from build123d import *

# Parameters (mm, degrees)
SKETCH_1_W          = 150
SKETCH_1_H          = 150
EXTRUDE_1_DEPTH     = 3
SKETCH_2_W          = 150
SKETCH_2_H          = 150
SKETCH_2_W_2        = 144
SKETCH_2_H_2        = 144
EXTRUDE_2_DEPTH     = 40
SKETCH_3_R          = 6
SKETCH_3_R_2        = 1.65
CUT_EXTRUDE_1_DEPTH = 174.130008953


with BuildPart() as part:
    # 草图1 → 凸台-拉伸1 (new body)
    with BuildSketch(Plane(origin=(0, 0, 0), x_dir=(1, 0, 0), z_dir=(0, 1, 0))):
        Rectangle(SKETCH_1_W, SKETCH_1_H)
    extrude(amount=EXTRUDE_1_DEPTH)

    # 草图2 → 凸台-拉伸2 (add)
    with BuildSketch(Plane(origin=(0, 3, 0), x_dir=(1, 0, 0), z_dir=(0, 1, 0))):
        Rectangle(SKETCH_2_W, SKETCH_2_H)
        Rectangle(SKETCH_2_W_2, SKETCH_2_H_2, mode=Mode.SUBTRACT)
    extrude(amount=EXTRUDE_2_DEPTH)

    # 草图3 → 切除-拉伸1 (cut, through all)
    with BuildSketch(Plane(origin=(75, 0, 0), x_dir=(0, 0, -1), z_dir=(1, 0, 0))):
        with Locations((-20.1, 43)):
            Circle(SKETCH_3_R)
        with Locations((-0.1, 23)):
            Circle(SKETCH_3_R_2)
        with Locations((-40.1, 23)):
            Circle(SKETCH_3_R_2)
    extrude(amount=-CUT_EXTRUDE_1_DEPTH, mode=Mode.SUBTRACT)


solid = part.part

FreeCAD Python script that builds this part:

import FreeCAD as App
import Part
import Sketcher
from FreeCAD import Vector


def add_polygon(sketch, points):
    """Adds a closed chain of lines whose ends are joined by coincident constraints."""
    first, n = sketch.GeometryCount, len(points)
    for a, b in zip(points, points[1:] + points[:1]):
        sketch.addGeometry(Part.LineSegment(App.Vector(*a, 0), App.Vector(*b, 0)), False)
    for i in range(n):
        sketch.addConstraint(Sketcher.Constraint("Coincident", first + i, 2, first + (i + 1) % n, 1))

doc = App.newDocument("Part")
body = doc.addObject("PartDesign::Body", "Body")

# Sketch on XZ plane
sketch1 = body.newObject("Sketcher::SketchObject", "Sketch")
sketch1.AttachmentSupport = (doc.getObject("XZ_Plane"), [""])
sketch1.MapMode = "FlatFace"
add_polygon(sketch1, [(-75, -75), (-75, 75), (75, 75), (75, -75)])  # lines 0-3
sketch1.addConstraint([
    Sketcher.Constraint("Vertical", 0),
    Sketcher.Constraint("Horizontal", 1),
    Sketcher.Constraint("Vertical", 2),
    Sketcher.Constraint("Horizontal", 3),
    Sketcher.Constraint("Symmetric", 0, 2, 2, 2, -1, 1),
    Sketcher.Constraint("Equal", 3, 0),
    Sketcher.Constraint("DistanceX", 1, 1, 1, 2, 150.0),
])
pad1 = body.newObject("PartDesign::Pad", "Pad")
pad1.Profile = sketch1
pad1.Length = 3
pad1.Reversed = True

# Sketch on XZ plane
sketch2 = body.newObject("Sketcher::SketchObject", "Sketch001")
sketch2.AttachmentSupport = (doc.getObject("XZ_Plane"), [""])
sketch2.MapMode = "FlatFace"
sketch2.AttachmentOffset = App.Placement(Vector(0, 0, -3), App.Rotation())
add_polygon(sketch2, [(-75, -75), (-75, 75), (75, 75), (75, -75)])  # lines 0-3
add_polygon(sketch2, [(72, 72), (-72, 72), (-72, -72), (72, -72)])  # lines 4-7
sketch2.addConstraint([
    Sketcher.Constraint("Vertical", 0),
    Sketcher.Constraint("Horizontal", 1),
    Sketcher.Constraint("Vertical", 2),
    Sketcher.Constraint("Horizontal", 3),
    Sketcher.Constraint("Horizontal", 4),
    Sketcher.Constraint("Vertical", 5),
    Sketcher.Constraint("Horizontal", 6),
    Sketcher.Constraint("Vertical", 7),
    Sketcher.Constraint("Symmetric", 0, 2, 2, 2, -1, 1),
    Sketcher.Constraint("Symmetric", 4, 2, 6, 2, -1, 1),
    Sketcher.Constraint("Equal", 3, 0),
    Sketcher.Constraint("Equal", 6, 5),
    Sketcher.Constraint("DistanceX", 1, 1, 1, 2, 150.0),
    Sketcher.Constraint("DistanceX", 4, 2, 4, 1, 144.0),
])
pad2 = body.newObject("PartDesign::Pad", "Pad001")
pad2.Profile = sketch2
pad2.Length = 40
pad2.Reversed = True

# Sketch on YZ plane
sketch3 = body.newObject("Sketcher::SketchObject", "Sketch002")
sketch3.AttachmentSupport = (doc.getObject("YZ_Plane"), [""])
sketch3.MapMode = "FlatFace"
sketch3.AttachmentOffset = App.Placement(Vector(0, 0, 75), App.Rotation())
sketch3.addGeometry([
    Part.Circle(Vector(43, 20.1, 0), Vector(0, 0, 1), 6),
    Part.Circle(Vector(23, 0.1, 0), Vector(0, 0, 1), 1.65),
    Part.Circle(Vector(23, 40.1, 0), Vector(0, 0, 1), 1.65),
], False)
sketch3.addConstraint([
    Sketcher.Constraint("Equal", 1, 2),
    Sketcher.Constraint("Vertical", 1, 3, 2, 3),
    Sketcher.Constraint("Diameter", 0, 12.0),
    Sketcher.Constraint("Diameter", 1, 3.3),
    Sketcher.Constraint("DistanceX", -1, 1, 0, 3, 43.0),
    Sketcher.Constraint("DistanceX", -1, 1, 1, 3, 23.0),
    Sketcher.Constraint("DistanceY", 1, 3, 0, 3, 20.0),
    Sketcher.Constraint("DistanceY", 0, 3, 2, 3, 20.0),
    Sketcher.Constraint("DistanceY", -1, 1, 0, 3, 20.1),
])
pocket1 = body.newObject("PartDesign::Pocket", "Pocket")
pocket1.Profile = sketch3
pocket1.Type = "ThroughAll"

doc.recompute()
